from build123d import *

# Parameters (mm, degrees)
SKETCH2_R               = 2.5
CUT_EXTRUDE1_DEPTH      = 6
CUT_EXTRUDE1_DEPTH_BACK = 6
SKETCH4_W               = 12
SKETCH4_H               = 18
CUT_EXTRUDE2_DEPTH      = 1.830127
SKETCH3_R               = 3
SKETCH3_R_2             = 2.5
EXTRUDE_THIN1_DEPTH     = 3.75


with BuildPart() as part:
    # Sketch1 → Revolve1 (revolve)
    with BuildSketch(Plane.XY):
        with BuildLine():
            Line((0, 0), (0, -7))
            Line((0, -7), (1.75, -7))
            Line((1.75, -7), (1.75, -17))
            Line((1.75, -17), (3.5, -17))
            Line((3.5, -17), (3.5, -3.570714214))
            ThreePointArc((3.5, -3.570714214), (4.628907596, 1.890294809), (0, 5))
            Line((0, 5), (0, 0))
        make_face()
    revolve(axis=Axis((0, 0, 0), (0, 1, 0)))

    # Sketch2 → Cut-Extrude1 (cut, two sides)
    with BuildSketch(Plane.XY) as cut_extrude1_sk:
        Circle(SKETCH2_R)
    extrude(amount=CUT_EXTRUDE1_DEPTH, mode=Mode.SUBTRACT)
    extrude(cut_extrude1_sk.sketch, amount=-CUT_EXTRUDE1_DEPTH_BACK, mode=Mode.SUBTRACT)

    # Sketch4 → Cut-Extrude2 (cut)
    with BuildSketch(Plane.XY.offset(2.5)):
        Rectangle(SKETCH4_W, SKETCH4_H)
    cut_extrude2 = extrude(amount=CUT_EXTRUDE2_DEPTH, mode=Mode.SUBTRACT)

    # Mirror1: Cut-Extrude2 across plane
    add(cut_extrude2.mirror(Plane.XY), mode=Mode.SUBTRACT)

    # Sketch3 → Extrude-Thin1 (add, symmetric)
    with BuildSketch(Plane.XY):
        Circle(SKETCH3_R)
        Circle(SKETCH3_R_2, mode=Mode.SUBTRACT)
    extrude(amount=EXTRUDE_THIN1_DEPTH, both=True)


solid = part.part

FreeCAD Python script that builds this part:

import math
import FreeCAD as App
import Part
import Sketcher


def add_polygon(sketch, points):
    """Adds a closed chain of lines whose ends are joined by coincident constraints."""
    first, n = sketch.GeometryCount, len(points)
    for a, b in zip(points, points[1:] + points[:1]):
        sketch.addGeometry(Part.LineSegment(App.Vector(*a, 0), App.Vector(*b, 0)), False)
    for i in range(n):
        sketch.addConstraint(Sketcher.Constraint("Coincident", first + i, 2, first + (i + 1) % n, 1))

doc = App.newDocument("Part")
body = doc.addObject("PartDesign::Body", "Body")

sketch1 = body.newObject("Sketcher::SketchObject", "Sketch")
sketch1.AttachmentSupport = (doc.getObject("XY_Plane"), [""])
sketch1.MapMode = "FlatFace"
sketch1.addGeometry([
    Part.LineSegment(App.Vector(0, -7, 0), App.Vector(1.8, -7, 0)),
    Part.LineSegment(App.Vector(1.8, -7, 0), App.Vector(1.8, -17, 0)),
    Part.LineSegment(App.Vector(1.8, -17, 0), App.Vector(3.5, -17, 0)),
    Part.LineSegment(App.Vector(3.5, -17, 0), App.Vector(3.5, -3.6, 0)),
    Part.ArcOfCircle(Part.Circle(App.Vector(0, 0, 0), App.Vector(0, 0, 1), 5), math.radians(-46), math.radians(90)),
    Part.LineSegment(App.Vector(0, 5, 0), App.Vector(0, -7, 0)),
], False)
sketch1.addConstraint([
    Sketcher.Constraint("Coincident", 0, 2, 1, 1),
    Sketcher.Constraint("Coincident", 1, 2, 2, 1),
    Sketcher.Constraint("Coincident", 2, 2, 3, 1),
    Sketcher.Constraint("Coincident", 3, 2, 4, 1),
    Sketcher.Constraint("Coincident", 4, 2, 5, 1),
    Sketcher.Constraint("Coincident", 5, 2, 0, 1),
    Sketcher.Constraint("Horizontal", 0),
    Sketcher.Constraint("Vertical", 1),
    Sketcher.Constraint("Horizontal", 2),
    Sketcher.Constraint("Vertical", 3),
    Sketcher.Constraint("Vertical", 5),
    Sketcher.Constraint("Coincident", 4, 3, -1, 1),
    Sketcher.Constraint("PointOnObject", 4, 2, -2),
    Sketcher.Constraint("Equal", 0, 2),
    Sketcher.Constraint("Radius", 4, 5.0),
    Sketcher.Constraint("DistanceY", 1, 2, 1, 1, 10.0),
    Sketcher.Constraint("DistanceY", 5, 2, 5, 1, 12.0),
    Sketcher.Constraint("DistanceX", 0, 1, 0, 2, 1.75),
])
revolution = body.newObject("PartDesign::Revolution", "Revolution")
revolution.Profile = sketch1
revolution.ReferenceAxis = (sketch1, ["V_Axis"])
revolution.Angle = 360

sketch2 = body.newObject("Sketcher::SketchObject", "Sketch001")
sketch2.AttachmentSupport = (doc.getObject("XY_Plane"), [""])
sketch2.MapMode = "FlatFace"
sketch2.addGeometry(Part.Circle(App.Vector(0, 0, 0), App.Vector(0, 0, 1), 2.5), False)
sketch2.addConstraint([
    Sketcher.Constraint("Coincident", 0, 3, -1, 1),
    Sketcher.Constraint("Diameter", 0, 5.0),
])
pocket1 = body.newObject("PartDesign::Pocket", "Pocket")
pocket1.Profile = sketch2
pocket1.Type = "ThroughAll"
pocket1.Midplane = True

sketch3 = body.newObject("Sketcher::SketchObject", "Sketch002")
sketch3.AttachmentSupport = (doc.getObject("XY_Plane"), [""])
sketch3.MapMode = "FlatFace"
sketch3.AttachmentOffset = App.Placement(App.Vector(0, 0, 2.5), App.Rotation())
add_polygon(sketch3, [(-6, 9), (-6, -9), (6, -9), (6, 9)])
sketch3.addConstraint([
    Sketcher.Constraint("Vertical", 0),
    Sketcher.Constraint("Horizontal", 1),
    Sketcher.Constraint("Vertical", 2),
    Sketcher.Constraint("Horizontal", 3),
    Sketcher.Constraint("Symmetric", 0, 2, 2, 2, -1, 1),
    Sketcher.Constraint("DistanceX", 1, 1, 1, 2, 12.0),
    Sketcher.Constraint("DistanceY", 0, 2, 0, 1, 18.0),
])
pocket2 = body.newObject("PartDesign::Pocket", "Pocket001")
pocket2.Profile = sketch3
pocket2.Length = 1.830127
pocket2.Reversed = True
doc.recompute()

mirrored = body.newObject("PartDesign::Mirrored", "Mirrored")
mirrored.Originals = [pocket2]
mirrored.MirrorPlane = (doc.getObject("XY_Plane"), [""])
body.Tip = mirrored

sketch4 = body.newObject("Sketcher::SketchObject", "Sketch003")
sketch4.AttachmentSupport = (doc.getObject("XY_Plane"), [""])
sketch4.MapMode = "FlatFace"
sketch4.addGeometry([
    Part.Circle(App.Vector(0, 0, 0), App.Vector(0, 0, 1), 3),
    Part.Circle(App.Vector(0, 0, 0), App.Vector(0, 0, 1), 2.5),
], False)
sketch4.addConstraint([
    Sketcher.Constraint("Coincident", 0, 3, -1, 1),
    Sketcher.Constraint("Coincident", 1, 3, -1, 1),
    Sketcher.Constraint("Diameter", 0, 6.0),
    Sketcher.Constraint("Diameter", 1, 5.0),
])
pad1 = body.newObject("PartDesign::Pad", "Pad")
pad1.Profile = sketch4
pad1.Length = 7.5
pad1.Midplane = True

doc.recompute()
